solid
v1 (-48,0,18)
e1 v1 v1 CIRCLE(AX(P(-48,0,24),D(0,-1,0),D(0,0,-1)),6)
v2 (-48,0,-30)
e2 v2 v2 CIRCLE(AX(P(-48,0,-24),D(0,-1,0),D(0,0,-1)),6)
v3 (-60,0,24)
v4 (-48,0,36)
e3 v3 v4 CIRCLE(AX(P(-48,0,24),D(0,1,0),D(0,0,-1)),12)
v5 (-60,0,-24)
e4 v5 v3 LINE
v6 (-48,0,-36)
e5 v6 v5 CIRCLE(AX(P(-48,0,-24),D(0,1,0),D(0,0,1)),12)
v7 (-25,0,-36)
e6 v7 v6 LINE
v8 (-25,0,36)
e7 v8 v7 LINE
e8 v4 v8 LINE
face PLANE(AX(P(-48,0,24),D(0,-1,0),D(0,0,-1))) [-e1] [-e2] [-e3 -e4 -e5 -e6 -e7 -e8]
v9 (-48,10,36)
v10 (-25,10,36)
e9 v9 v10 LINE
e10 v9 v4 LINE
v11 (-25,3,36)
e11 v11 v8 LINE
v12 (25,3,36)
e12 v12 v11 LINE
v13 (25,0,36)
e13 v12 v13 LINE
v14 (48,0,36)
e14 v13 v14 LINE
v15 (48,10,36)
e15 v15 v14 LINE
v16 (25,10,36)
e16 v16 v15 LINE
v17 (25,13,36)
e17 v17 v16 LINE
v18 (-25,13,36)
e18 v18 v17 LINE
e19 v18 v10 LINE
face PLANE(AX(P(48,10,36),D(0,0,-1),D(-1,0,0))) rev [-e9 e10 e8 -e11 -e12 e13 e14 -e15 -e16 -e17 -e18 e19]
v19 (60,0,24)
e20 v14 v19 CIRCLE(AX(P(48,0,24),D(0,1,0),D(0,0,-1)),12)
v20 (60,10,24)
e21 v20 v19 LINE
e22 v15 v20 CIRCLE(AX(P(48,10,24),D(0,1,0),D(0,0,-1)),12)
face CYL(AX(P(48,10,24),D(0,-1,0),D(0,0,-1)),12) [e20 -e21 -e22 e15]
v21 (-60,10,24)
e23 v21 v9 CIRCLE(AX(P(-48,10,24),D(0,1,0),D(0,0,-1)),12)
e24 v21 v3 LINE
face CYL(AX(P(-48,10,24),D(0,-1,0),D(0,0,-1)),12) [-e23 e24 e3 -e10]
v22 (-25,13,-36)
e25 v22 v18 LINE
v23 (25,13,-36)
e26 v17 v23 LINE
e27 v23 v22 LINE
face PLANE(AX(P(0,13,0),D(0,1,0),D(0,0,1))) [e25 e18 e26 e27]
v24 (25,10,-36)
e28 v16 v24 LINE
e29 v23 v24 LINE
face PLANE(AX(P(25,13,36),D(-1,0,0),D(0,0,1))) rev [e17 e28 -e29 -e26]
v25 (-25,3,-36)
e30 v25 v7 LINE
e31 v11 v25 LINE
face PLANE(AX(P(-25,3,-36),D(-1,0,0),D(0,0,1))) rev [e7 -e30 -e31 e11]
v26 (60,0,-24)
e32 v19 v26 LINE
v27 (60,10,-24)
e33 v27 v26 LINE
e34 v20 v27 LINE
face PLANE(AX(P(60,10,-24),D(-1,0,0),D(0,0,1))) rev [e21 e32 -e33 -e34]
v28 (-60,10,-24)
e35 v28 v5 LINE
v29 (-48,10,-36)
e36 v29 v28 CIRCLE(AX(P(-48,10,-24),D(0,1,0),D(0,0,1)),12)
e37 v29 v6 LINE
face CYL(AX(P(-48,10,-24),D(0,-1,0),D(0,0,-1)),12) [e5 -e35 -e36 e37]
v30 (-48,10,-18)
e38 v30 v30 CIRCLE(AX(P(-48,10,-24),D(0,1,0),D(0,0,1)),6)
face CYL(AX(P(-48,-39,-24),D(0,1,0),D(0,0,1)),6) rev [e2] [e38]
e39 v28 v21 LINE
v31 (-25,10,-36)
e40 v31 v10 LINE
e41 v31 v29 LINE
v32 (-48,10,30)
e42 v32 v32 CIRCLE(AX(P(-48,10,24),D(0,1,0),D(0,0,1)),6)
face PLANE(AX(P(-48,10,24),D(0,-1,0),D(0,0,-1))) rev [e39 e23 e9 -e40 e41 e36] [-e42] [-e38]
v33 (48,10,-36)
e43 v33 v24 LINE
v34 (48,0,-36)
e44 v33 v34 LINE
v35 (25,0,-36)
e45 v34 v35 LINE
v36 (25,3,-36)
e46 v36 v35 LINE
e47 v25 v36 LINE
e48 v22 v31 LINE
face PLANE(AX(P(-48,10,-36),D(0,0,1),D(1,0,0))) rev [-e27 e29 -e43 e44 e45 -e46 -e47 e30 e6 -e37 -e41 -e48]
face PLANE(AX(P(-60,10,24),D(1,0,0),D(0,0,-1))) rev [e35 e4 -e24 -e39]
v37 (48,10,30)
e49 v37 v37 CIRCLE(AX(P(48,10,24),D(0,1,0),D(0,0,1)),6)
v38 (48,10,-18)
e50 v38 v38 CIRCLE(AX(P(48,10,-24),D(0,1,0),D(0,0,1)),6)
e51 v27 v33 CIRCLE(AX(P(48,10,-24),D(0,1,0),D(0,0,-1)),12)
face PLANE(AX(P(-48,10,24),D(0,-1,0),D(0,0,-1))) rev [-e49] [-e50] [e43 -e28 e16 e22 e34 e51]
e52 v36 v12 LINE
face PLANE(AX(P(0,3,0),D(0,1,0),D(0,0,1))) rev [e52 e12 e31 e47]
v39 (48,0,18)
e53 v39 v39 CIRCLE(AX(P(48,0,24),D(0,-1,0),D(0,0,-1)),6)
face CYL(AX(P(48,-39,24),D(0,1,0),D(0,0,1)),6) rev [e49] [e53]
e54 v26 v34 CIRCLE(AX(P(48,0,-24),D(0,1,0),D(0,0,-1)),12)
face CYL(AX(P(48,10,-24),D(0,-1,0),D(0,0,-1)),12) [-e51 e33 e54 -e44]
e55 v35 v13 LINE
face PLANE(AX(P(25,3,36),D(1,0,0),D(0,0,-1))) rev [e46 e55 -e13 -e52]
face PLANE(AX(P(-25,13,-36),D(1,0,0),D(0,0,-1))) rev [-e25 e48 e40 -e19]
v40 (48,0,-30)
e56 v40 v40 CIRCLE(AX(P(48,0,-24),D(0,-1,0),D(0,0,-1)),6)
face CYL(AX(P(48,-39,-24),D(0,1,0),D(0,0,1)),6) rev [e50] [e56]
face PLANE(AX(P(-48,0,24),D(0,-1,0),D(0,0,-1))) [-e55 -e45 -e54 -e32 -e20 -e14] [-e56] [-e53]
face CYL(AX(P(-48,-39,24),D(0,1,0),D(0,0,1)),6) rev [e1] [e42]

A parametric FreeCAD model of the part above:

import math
import FreeCAD as App
import Part
import Sketcher

V = App.Vector


def add_polygon(sketch, points):
    """Adds a closed chain of lines whose ends are joined by coincident constraints."""
    first, n = sketch.GeometryCount, len(points)
    for a, b in zip(points, points[1:] + points[:1]):
        sketch.addGeometry(Part.LineSegment(App.Vector(*a, 0), App.Vector(*b, 0)), False)
    for i in range(n):
        sketch.addConstraint(Sketcher.Constraint("Coincident", first + i, 2, first + (i + 1) % n, 1))

doc = App.newDocument("Part")
body = doc.addObject("PartDesign::Body", "Body")

# Sketch on XZ plane
sketch1 = body.newObject("Sketcher::SketchObject", "Sketch")
sketch1.AttachmentSupport = (doc.getObject("XZ_Plane"), [""])
sketch1.MapMode = "FlatFace"
sketch1.addGeometry(Part.LineSegment(V(48, -36, 0), V(-48, -36, 0)), False)
sketch1.addGeometry(Part.ArcOfCircle(Part.Circle(V(-48, -24, 0), V(0, 0, 1), 12), math.radians(-180), math.radians(-90)), False)
sketch1.addGeometry(Part.LineSegment(V(-60, -24, 0), V(-60, 24, 0)), False)
sketch1.addGeometry(Part.ArcOfCircle(Part.Circle(V(-48, 24, 0), V(0, 0, 1), 12), math.radians(90), math.radians(180)), False)
sketch1.addGeometry(Part.LineSegment(V(-48, 36, 0), V(48, 36, 0)), False)
sketch1.addGeometry(Part.ArcOfCircle(Part.Circle(V(48, 24, 0), V(0, 0, 1), 12), math.radians(0), math.radians(90)), False)
sketch1.addGeometry(Part.LineSegment(V(60, 24, 0), V(60, -24, 0)), False)
sketch1.addGeometry(Part.ArcOfCircle(Part.Circle(V(48, -24, 0), V(0, 0, 1), 12), math.radians(-90), math.radians(0)), False)
sketch1.addConstraint(Sketcher.Constraint("Tangent", 0, 2, 1, 2))
sketch1.addConstraint(Sketcher.Constraint("Tangent", 1, 1, 2, 1))
sketch1.addConstraint(Sketcher.Constraint("Tangent", 2, 2, 3, 2))
sketch1.addConstraint(Sketcher.Constraint("Tangent", 3, 1, 4, 1))
sketch1.addConstraint(Sketcher.Constraint("Tangent", 4, 2, 5, 2))
sketch1.addConstraint(Sketcher.Constraint("Tangent", 5, 1, 6, 1))
sketch1.addConstraint(Sketcher.Constraint("Tangent", 6, 2, 7, 2))
sketch1.addConstraint(Sketcher.Constraint("Tangent", 7, 1, 0, 1))
sketch1.addConstraint(Sketcher.Constraint("Horizontal", 0))
sketch1.addConstraint(Sketcher.Constraint("Vertical", 2))
sketch1.addConstraint(Sketcher.Constraint("Horizontal", 4))
sketch1.addConstraint(Sketcher.Constraint("Vertical", 6))
sketch1.addConstraint(Sketcher.Constraint("Equal", 1, 3))
sketch1.addConstraint(Sketcher.Constraint("Equal", 3, 5))
sketch1.addConstraint(Sketcher.Constraint("Equal", 5, 7))
sketch1.addConstraint(Sketcher.Constraint("Symmetric", 1, 3, 5, 3, -1, 1))
sketch1.addConstraint(Sketcher.Constraint("Radius", 1, 12.0))
sketch1.addConstraint(Sketcher.Constraint("DistanceX", 0, 2, 0, 1, 96.0))
sketch1.addConstraint(Sketcher.Constraint("DistanceY", 2, 1, 2, 2, 48.0))
pad1 = body.newObject("PartDesign::Pad", "Pad")
pad1.Profile = sketch1
pad1.Length = 10
pad1.Reversed = True

# Sketch on XZ plane
sketch2 = body.newObject("Sketcher::SketchObject", "Sketch001")
sketch2.AttachmentSupport = (doc.getObject("XZ_Plane"), [""])
sketch2.MapMode = "FlatFace"
sketch2.AttachmentOffset = App.Placement(V(0, 0, -10), App.Rotation())
add_polygon(sketch2, [(-25, -36), (-25, 36), (25, 36), (25, -36)])  # lines 0-3
sketch2.addConstraint(Sketcher.Constraint("Vertical", 0))
sketch2.addConstraint(Sketcher.Constraint("Horizontal", 1))
sketch2.addConstraint(Sketcher.Constraint("Vertical", 2))
sketch2.addConstraint(Sketcher.Constraint("Horizontal", 3))
sketch2.addConstraint(Sketcher.Constraint("Symmetric", 0, 2, 2, 2, -1, 1))
sketch2.addConstraint(Sketcher.Constraint("DistanceX", 1, 1, 1, 2, 50.0))
sketch2.addConstraint(Sketcher.Constraint("DistanceY", 0, 1, 0, 2, 72.0))
pad2 = body.newObject("PartDesign::Pad", "Pad001")
pad2.Profile = sketch2
pad2.Length = 3
pad2.Reversed = True

# Sketch on XZ plane
sketch3 = body.newObject("Sketcher::SketchObject", "Sketch002")
sketch3.AttachmentSupport = (doc.getObject("XZ_Plane"), [""])
sketch3.MapMode = "FlatFace"
add_polygon(sketch3, [(-25, 36), (-25, -36), (25, -36), (25, 36)])  # lines 0-3
sketch3.addConstraint(Sketcher.Constraint("Vertical", 0))
sketch3.addConstraint(Sketcher.Constraint("Horizontal", 1))
sketch3.addConstraint(Sketcher.Constraint("Vertical", 2))
sketch3.addConstraint(Sketcher.Constraint("Horizontal", 3))
sketch3.addConstraint(Sketcher.Constraint("Symmetric", 0, 2, 2, 2, -1, 1))
sketch3.addConstraint(Sketcher.Constraint("DistanceX", 1, 1, 1, 2, 50.0))
sketch3.addConstraint(Sketcher.Constraint("DistanceY", 0, 2, 0, 1, 72.0))
pocket1 = body.newObject("PartDesign::Pocket", "Pocket")
pocket1.Profile = sketch3
pocket1.Length = 3

# Sketch on XZ plane
sketch4 = body.newObject("Sketcher::SketchObject", "Sketch003")
sketch4.AttachmentSupport = (doc.getObject("XZ_Plane"), [""])
sketch4.MapMode = "FlatFace"
sketch4.AttachmentOffset = App.Placement(V(0, 0, -10), App.Rotation())
sketch4.addGeometry(Part.Circle(V(48, -24, 0), V(0, 0, 1), 6), False)
sketch4.addGeometry(Part.Circle(V(48, 24, 0), V(0, 0, 1), 6), False)
sketch4.addGeometry(Part.Circle(V(-48, 24, 0), V(0, 0, 1), 6), False)
sketch4.addGeometry(Part.Circle(V(-48, -24, 0), V(0, 0, 1), 6), False)
sketch4.addConstraint(Sketcher.Constraint("Equal", 0, 1))
sketch4.addConstraint(Sketcher.Constraint("Equal", 1, 2))
sketch4.addConstraint(Sketcher.Constraint("Equal", 2, 3))
sketch4.addConstraint(Sketcher.Constraint("Symmetric", 0, 3, 2, 3, -1, 1))
sketch4.addConstraint(Sketcher.Constraint("Symmetric", 1, 3, 3, 3, -1, 1))
sketch4.addConstraint(Sketcher.Constraint("Symmetric", 1, 3, 2, 3, -2))
sketch4.addConstraint(Sketcher.Constraint("Diameter", 0, 12.0))
sketch4.addConstraint(Sketcher.Constraint("DistanceX", -1, 1, 0, 3, 48.0))
sketch4.addConstraint(Sketcher.Constraint("DistanceY", 0, 3, -1, 1, 24.0))
pocket2 = body.newObject("PartDesign::Pocket", "Pocket001")
pocket2.Profile = sketch4
pocket2.Length = 49
pocket2.Reversed = True

doc.recompute()
